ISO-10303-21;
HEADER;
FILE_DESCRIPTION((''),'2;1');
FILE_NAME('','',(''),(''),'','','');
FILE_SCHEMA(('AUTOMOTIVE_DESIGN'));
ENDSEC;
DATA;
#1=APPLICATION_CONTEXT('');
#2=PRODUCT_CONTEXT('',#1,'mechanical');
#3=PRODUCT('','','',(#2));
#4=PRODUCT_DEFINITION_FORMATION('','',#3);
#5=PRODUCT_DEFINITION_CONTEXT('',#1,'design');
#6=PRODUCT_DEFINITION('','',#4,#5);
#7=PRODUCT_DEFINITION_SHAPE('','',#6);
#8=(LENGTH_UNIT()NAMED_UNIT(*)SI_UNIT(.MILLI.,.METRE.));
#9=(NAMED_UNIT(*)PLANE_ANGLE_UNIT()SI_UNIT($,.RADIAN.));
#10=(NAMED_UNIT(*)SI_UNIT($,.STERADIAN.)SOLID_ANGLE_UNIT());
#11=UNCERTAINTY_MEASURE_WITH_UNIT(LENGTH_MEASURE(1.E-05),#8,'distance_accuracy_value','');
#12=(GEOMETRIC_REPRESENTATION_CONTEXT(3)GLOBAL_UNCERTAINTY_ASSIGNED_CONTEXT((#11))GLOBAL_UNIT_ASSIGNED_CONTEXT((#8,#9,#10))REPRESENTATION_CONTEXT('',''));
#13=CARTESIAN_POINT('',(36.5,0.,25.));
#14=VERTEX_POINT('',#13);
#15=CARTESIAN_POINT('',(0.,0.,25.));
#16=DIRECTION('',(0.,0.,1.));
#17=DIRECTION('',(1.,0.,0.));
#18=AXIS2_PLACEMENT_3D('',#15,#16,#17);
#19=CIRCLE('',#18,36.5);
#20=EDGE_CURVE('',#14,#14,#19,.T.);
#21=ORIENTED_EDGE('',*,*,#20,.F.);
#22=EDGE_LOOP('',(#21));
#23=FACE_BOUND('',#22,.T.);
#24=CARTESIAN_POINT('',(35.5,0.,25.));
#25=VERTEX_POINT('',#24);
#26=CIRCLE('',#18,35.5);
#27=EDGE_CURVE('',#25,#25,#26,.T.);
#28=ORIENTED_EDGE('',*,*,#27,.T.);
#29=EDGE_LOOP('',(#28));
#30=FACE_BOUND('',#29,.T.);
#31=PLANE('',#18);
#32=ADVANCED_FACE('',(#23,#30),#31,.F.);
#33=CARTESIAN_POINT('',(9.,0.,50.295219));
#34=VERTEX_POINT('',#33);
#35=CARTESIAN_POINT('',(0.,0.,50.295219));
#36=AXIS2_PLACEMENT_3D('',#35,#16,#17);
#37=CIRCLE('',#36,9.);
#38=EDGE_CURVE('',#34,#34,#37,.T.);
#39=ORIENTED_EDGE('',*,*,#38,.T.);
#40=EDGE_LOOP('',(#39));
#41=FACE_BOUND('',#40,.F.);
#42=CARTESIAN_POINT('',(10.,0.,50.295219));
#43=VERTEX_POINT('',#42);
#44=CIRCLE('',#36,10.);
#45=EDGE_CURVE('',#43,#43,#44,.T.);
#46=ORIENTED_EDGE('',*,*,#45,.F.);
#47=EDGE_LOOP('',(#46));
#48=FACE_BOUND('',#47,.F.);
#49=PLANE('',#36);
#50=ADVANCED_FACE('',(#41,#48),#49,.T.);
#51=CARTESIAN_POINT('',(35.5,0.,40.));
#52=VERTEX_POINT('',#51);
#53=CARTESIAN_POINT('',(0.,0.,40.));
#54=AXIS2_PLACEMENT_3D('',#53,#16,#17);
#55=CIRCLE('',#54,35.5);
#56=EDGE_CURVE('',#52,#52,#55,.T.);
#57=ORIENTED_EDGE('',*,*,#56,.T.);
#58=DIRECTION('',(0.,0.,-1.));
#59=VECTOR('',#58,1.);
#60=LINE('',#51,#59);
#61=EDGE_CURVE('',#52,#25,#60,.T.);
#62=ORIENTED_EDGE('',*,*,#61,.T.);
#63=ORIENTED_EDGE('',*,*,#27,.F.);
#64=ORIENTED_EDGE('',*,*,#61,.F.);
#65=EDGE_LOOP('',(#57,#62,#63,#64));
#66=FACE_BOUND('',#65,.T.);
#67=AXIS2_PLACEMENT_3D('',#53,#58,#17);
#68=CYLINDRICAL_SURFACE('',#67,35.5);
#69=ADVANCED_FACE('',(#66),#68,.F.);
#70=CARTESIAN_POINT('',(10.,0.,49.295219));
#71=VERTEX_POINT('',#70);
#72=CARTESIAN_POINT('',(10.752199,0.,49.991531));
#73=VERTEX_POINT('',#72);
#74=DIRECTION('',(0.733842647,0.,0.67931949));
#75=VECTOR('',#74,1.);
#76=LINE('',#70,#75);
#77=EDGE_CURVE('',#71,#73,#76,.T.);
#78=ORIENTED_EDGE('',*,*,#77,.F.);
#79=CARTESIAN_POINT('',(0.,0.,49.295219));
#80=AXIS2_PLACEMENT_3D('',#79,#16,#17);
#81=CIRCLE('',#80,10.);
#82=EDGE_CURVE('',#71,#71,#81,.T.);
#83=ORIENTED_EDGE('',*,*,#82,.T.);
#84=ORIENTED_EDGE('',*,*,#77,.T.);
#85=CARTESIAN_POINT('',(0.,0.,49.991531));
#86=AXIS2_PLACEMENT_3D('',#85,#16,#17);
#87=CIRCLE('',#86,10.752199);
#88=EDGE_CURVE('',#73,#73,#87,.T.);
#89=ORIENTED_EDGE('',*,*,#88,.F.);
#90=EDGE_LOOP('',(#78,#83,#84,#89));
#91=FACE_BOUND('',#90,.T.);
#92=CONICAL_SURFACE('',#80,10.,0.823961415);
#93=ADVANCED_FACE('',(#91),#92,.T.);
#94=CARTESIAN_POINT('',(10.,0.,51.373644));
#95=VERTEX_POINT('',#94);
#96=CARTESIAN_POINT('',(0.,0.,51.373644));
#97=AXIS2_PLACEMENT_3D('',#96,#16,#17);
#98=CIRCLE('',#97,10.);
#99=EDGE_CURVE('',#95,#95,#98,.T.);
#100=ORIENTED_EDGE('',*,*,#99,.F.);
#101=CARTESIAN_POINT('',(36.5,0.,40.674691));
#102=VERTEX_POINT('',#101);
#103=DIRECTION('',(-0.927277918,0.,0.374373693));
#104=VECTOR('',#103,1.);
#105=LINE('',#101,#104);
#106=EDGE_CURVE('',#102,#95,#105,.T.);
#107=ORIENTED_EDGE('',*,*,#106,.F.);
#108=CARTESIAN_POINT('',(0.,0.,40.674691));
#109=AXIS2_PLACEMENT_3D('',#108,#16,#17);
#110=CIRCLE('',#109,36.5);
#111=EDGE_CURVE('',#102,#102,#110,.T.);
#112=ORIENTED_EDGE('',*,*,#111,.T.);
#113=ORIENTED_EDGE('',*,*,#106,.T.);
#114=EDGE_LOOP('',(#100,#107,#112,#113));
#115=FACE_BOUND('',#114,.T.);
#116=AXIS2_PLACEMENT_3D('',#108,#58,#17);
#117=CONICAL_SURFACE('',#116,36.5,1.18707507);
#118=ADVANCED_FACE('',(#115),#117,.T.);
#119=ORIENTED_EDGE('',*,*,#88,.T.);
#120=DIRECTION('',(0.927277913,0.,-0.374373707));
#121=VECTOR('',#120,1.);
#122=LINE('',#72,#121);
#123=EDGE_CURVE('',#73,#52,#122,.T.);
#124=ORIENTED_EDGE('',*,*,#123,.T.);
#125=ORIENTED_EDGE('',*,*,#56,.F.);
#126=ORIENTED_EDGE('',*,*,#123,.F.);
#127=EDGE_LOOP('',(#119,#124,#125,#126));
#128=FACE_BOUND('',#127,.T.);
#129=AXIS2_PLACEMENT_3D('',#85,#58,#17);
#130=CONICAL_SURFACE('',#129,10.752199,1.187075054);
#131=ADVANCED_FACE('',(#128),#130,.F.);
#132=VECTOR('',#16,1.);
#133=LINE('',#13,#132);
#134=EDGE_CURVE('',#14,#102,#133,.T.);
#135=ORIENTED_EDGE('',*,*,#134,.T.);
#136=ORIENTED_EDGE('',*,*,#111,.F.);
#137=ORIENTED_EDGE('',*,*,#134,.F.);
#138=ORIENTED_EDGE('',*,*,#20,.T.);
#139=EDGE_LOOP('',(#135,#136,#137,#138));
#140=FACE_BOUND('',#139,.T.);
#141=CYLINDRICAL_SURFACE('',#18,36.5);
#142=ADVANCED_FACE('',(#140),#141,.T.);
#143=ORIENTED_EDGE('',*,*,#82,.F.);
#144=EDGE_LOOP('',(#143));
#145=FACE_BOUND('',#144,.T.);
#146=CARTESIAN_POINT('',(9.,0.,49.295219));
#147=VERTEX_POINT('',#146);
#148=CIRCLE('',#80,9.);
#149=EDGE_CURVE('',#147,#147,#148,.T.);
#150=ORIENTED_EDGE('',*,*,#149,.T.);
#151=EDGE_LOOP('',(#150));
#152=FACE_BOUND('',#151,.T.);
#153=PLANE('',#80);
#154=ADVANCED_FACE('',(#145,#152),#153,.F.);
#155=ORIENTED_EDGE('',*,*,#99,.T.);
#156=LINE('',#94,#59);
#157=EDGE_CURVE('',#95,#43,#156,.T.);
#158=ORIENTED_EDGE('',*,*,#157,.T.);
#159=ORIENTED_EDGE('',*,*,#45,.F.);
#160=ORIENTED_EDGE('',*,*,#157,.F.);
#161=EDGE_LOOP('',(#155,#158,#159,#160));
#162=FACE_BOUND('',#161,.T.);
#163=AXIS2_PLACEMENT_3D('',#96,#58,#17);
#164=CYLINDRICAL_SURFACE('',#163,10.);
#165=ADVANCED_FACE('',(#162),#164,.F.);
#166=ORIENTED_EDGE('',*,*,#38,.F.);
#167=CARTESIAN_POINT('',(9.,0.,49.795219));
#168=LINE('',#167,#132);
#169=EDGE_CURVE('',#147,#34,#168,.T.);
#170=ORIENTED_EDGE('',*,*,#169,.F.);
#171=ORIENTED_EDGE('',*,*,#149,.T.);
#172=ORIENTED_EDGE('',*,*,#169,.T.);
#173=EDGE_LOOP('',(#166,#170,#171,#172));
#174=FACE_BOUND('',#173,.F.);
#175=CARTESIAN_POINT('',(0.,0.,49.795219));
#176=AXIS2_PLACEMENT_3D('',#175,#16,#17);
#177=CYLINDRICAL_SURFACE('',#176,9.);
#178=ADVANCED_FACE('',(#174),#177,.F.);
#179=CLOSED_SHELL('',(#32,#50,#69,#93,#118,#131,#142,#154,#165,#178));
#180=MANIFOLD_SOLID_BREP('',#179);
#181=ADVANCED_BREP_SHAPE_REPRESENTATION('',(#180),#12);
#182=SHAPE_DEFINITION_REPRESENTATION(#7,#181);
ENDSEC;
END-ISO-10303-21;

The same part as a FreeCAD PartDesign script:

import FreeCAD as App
import Part
import Sketcher
from FreeCAD import Vector
Q = App.Units.Quantity


def add_polygon(sketch, points):
    """Adds a closed chain of lines whose ends are joined by coincident constraints."""
    first, n = sketch.GeometryCount, len(points)
    for a, b in zip(points, points[1:] + points[:1]):
        sketch.addGeometry(Part.LineSegment(App.Vector(*a, 0), App.Vector(*b, 0)), False)
    for i in range(n):
        sketch.addConstraint(Sketcher.Constraint("Coincident", first + i, 2, first + (i + 1) % n, 1))

doc = App.newDocument("Part")
body = doc.addObject("PartDesign::Body", "Body")

# Sketch on XZ plane
sketch1 = doc.addObject("Sketcher::SketchObject", "Sketch")
body.addObject(sketch1)
sketch1.AttachmentSupport = (doc.XZ_Plane, [""])
sketch1.MapMode = "FlatFace"
add_polygon(sketch1, [(35.5, 40), (35.5, 25), (36.5, 25), (36.5, 40.674691), (10, 51.373644), (10, 50.295219), (9, 50.295219), (9, 49.295219), (10, 49.295219), (10.752199, 49.991531)])  # lines 0-9
sketch1.addConstraint([
    Sketcher.Constraint("Vertical", 0),
    Sketcher.Constraint("Horizontal", 1),
    Sketcher.Constraint("Vertical", 2),
    Sketcher.Constraint("Vertical", 4),
    Sketcher.Constraint("Horizontal", 5),
    Sketcher.Constraint("Vertical", 6),
    Sketcher.Constraint("Horizontal", 7),
    Sketcher.Constraint("Parallel", 3, 9),
    Sketcher.Constraint("Vertical", 4, 2, 7, 2),
    Sketcher.Constraint("Equal", 1, 5),
    Sketcher.Constraint("Equal", 7, 6),
    Sketcher.Constraint("DistanceX", 1, 1, 1, 2, Q("1 mm")),
    Sketcher.Constraint("DistanceY", 0, 2, 0, 1, Q("15 mm")),
    Sketcher.Constraint("DistanceY", -1, 1, 0, 2, Q("25 mm")),
    Sketcher.Constraint("DistanceX", -1, 1, 3, 2, Q("10 mm")),
    Sketcher.Constraint("DistanceX", -1, 1, 0, 2, Q("35.5 mm")),
    Sketcher.Constraint("DistanceY", 2, 1, 2, 2, Q("15.674691 mm")),
    Sketcher.Constraint("DistanceX", -1, 1, 8, 2, Q("10.752199 mm")),
    Sketcher.Constraint("Distance", 3, Q("28.578271 mm")),
    Sketcher.Constraint("DistanceY", 4, 2, 4, 1, Q("1.078425 mm")),
])
revolution = doc.addObject("PartDesign::Revolution", "Revolution")
body.addObject(revolution)
revolution.Profile = sketch1
revolution.ReferenceAxis = (sketch1, ["V_Axis"])
revolution.Angle = 360

doc.recompute()
